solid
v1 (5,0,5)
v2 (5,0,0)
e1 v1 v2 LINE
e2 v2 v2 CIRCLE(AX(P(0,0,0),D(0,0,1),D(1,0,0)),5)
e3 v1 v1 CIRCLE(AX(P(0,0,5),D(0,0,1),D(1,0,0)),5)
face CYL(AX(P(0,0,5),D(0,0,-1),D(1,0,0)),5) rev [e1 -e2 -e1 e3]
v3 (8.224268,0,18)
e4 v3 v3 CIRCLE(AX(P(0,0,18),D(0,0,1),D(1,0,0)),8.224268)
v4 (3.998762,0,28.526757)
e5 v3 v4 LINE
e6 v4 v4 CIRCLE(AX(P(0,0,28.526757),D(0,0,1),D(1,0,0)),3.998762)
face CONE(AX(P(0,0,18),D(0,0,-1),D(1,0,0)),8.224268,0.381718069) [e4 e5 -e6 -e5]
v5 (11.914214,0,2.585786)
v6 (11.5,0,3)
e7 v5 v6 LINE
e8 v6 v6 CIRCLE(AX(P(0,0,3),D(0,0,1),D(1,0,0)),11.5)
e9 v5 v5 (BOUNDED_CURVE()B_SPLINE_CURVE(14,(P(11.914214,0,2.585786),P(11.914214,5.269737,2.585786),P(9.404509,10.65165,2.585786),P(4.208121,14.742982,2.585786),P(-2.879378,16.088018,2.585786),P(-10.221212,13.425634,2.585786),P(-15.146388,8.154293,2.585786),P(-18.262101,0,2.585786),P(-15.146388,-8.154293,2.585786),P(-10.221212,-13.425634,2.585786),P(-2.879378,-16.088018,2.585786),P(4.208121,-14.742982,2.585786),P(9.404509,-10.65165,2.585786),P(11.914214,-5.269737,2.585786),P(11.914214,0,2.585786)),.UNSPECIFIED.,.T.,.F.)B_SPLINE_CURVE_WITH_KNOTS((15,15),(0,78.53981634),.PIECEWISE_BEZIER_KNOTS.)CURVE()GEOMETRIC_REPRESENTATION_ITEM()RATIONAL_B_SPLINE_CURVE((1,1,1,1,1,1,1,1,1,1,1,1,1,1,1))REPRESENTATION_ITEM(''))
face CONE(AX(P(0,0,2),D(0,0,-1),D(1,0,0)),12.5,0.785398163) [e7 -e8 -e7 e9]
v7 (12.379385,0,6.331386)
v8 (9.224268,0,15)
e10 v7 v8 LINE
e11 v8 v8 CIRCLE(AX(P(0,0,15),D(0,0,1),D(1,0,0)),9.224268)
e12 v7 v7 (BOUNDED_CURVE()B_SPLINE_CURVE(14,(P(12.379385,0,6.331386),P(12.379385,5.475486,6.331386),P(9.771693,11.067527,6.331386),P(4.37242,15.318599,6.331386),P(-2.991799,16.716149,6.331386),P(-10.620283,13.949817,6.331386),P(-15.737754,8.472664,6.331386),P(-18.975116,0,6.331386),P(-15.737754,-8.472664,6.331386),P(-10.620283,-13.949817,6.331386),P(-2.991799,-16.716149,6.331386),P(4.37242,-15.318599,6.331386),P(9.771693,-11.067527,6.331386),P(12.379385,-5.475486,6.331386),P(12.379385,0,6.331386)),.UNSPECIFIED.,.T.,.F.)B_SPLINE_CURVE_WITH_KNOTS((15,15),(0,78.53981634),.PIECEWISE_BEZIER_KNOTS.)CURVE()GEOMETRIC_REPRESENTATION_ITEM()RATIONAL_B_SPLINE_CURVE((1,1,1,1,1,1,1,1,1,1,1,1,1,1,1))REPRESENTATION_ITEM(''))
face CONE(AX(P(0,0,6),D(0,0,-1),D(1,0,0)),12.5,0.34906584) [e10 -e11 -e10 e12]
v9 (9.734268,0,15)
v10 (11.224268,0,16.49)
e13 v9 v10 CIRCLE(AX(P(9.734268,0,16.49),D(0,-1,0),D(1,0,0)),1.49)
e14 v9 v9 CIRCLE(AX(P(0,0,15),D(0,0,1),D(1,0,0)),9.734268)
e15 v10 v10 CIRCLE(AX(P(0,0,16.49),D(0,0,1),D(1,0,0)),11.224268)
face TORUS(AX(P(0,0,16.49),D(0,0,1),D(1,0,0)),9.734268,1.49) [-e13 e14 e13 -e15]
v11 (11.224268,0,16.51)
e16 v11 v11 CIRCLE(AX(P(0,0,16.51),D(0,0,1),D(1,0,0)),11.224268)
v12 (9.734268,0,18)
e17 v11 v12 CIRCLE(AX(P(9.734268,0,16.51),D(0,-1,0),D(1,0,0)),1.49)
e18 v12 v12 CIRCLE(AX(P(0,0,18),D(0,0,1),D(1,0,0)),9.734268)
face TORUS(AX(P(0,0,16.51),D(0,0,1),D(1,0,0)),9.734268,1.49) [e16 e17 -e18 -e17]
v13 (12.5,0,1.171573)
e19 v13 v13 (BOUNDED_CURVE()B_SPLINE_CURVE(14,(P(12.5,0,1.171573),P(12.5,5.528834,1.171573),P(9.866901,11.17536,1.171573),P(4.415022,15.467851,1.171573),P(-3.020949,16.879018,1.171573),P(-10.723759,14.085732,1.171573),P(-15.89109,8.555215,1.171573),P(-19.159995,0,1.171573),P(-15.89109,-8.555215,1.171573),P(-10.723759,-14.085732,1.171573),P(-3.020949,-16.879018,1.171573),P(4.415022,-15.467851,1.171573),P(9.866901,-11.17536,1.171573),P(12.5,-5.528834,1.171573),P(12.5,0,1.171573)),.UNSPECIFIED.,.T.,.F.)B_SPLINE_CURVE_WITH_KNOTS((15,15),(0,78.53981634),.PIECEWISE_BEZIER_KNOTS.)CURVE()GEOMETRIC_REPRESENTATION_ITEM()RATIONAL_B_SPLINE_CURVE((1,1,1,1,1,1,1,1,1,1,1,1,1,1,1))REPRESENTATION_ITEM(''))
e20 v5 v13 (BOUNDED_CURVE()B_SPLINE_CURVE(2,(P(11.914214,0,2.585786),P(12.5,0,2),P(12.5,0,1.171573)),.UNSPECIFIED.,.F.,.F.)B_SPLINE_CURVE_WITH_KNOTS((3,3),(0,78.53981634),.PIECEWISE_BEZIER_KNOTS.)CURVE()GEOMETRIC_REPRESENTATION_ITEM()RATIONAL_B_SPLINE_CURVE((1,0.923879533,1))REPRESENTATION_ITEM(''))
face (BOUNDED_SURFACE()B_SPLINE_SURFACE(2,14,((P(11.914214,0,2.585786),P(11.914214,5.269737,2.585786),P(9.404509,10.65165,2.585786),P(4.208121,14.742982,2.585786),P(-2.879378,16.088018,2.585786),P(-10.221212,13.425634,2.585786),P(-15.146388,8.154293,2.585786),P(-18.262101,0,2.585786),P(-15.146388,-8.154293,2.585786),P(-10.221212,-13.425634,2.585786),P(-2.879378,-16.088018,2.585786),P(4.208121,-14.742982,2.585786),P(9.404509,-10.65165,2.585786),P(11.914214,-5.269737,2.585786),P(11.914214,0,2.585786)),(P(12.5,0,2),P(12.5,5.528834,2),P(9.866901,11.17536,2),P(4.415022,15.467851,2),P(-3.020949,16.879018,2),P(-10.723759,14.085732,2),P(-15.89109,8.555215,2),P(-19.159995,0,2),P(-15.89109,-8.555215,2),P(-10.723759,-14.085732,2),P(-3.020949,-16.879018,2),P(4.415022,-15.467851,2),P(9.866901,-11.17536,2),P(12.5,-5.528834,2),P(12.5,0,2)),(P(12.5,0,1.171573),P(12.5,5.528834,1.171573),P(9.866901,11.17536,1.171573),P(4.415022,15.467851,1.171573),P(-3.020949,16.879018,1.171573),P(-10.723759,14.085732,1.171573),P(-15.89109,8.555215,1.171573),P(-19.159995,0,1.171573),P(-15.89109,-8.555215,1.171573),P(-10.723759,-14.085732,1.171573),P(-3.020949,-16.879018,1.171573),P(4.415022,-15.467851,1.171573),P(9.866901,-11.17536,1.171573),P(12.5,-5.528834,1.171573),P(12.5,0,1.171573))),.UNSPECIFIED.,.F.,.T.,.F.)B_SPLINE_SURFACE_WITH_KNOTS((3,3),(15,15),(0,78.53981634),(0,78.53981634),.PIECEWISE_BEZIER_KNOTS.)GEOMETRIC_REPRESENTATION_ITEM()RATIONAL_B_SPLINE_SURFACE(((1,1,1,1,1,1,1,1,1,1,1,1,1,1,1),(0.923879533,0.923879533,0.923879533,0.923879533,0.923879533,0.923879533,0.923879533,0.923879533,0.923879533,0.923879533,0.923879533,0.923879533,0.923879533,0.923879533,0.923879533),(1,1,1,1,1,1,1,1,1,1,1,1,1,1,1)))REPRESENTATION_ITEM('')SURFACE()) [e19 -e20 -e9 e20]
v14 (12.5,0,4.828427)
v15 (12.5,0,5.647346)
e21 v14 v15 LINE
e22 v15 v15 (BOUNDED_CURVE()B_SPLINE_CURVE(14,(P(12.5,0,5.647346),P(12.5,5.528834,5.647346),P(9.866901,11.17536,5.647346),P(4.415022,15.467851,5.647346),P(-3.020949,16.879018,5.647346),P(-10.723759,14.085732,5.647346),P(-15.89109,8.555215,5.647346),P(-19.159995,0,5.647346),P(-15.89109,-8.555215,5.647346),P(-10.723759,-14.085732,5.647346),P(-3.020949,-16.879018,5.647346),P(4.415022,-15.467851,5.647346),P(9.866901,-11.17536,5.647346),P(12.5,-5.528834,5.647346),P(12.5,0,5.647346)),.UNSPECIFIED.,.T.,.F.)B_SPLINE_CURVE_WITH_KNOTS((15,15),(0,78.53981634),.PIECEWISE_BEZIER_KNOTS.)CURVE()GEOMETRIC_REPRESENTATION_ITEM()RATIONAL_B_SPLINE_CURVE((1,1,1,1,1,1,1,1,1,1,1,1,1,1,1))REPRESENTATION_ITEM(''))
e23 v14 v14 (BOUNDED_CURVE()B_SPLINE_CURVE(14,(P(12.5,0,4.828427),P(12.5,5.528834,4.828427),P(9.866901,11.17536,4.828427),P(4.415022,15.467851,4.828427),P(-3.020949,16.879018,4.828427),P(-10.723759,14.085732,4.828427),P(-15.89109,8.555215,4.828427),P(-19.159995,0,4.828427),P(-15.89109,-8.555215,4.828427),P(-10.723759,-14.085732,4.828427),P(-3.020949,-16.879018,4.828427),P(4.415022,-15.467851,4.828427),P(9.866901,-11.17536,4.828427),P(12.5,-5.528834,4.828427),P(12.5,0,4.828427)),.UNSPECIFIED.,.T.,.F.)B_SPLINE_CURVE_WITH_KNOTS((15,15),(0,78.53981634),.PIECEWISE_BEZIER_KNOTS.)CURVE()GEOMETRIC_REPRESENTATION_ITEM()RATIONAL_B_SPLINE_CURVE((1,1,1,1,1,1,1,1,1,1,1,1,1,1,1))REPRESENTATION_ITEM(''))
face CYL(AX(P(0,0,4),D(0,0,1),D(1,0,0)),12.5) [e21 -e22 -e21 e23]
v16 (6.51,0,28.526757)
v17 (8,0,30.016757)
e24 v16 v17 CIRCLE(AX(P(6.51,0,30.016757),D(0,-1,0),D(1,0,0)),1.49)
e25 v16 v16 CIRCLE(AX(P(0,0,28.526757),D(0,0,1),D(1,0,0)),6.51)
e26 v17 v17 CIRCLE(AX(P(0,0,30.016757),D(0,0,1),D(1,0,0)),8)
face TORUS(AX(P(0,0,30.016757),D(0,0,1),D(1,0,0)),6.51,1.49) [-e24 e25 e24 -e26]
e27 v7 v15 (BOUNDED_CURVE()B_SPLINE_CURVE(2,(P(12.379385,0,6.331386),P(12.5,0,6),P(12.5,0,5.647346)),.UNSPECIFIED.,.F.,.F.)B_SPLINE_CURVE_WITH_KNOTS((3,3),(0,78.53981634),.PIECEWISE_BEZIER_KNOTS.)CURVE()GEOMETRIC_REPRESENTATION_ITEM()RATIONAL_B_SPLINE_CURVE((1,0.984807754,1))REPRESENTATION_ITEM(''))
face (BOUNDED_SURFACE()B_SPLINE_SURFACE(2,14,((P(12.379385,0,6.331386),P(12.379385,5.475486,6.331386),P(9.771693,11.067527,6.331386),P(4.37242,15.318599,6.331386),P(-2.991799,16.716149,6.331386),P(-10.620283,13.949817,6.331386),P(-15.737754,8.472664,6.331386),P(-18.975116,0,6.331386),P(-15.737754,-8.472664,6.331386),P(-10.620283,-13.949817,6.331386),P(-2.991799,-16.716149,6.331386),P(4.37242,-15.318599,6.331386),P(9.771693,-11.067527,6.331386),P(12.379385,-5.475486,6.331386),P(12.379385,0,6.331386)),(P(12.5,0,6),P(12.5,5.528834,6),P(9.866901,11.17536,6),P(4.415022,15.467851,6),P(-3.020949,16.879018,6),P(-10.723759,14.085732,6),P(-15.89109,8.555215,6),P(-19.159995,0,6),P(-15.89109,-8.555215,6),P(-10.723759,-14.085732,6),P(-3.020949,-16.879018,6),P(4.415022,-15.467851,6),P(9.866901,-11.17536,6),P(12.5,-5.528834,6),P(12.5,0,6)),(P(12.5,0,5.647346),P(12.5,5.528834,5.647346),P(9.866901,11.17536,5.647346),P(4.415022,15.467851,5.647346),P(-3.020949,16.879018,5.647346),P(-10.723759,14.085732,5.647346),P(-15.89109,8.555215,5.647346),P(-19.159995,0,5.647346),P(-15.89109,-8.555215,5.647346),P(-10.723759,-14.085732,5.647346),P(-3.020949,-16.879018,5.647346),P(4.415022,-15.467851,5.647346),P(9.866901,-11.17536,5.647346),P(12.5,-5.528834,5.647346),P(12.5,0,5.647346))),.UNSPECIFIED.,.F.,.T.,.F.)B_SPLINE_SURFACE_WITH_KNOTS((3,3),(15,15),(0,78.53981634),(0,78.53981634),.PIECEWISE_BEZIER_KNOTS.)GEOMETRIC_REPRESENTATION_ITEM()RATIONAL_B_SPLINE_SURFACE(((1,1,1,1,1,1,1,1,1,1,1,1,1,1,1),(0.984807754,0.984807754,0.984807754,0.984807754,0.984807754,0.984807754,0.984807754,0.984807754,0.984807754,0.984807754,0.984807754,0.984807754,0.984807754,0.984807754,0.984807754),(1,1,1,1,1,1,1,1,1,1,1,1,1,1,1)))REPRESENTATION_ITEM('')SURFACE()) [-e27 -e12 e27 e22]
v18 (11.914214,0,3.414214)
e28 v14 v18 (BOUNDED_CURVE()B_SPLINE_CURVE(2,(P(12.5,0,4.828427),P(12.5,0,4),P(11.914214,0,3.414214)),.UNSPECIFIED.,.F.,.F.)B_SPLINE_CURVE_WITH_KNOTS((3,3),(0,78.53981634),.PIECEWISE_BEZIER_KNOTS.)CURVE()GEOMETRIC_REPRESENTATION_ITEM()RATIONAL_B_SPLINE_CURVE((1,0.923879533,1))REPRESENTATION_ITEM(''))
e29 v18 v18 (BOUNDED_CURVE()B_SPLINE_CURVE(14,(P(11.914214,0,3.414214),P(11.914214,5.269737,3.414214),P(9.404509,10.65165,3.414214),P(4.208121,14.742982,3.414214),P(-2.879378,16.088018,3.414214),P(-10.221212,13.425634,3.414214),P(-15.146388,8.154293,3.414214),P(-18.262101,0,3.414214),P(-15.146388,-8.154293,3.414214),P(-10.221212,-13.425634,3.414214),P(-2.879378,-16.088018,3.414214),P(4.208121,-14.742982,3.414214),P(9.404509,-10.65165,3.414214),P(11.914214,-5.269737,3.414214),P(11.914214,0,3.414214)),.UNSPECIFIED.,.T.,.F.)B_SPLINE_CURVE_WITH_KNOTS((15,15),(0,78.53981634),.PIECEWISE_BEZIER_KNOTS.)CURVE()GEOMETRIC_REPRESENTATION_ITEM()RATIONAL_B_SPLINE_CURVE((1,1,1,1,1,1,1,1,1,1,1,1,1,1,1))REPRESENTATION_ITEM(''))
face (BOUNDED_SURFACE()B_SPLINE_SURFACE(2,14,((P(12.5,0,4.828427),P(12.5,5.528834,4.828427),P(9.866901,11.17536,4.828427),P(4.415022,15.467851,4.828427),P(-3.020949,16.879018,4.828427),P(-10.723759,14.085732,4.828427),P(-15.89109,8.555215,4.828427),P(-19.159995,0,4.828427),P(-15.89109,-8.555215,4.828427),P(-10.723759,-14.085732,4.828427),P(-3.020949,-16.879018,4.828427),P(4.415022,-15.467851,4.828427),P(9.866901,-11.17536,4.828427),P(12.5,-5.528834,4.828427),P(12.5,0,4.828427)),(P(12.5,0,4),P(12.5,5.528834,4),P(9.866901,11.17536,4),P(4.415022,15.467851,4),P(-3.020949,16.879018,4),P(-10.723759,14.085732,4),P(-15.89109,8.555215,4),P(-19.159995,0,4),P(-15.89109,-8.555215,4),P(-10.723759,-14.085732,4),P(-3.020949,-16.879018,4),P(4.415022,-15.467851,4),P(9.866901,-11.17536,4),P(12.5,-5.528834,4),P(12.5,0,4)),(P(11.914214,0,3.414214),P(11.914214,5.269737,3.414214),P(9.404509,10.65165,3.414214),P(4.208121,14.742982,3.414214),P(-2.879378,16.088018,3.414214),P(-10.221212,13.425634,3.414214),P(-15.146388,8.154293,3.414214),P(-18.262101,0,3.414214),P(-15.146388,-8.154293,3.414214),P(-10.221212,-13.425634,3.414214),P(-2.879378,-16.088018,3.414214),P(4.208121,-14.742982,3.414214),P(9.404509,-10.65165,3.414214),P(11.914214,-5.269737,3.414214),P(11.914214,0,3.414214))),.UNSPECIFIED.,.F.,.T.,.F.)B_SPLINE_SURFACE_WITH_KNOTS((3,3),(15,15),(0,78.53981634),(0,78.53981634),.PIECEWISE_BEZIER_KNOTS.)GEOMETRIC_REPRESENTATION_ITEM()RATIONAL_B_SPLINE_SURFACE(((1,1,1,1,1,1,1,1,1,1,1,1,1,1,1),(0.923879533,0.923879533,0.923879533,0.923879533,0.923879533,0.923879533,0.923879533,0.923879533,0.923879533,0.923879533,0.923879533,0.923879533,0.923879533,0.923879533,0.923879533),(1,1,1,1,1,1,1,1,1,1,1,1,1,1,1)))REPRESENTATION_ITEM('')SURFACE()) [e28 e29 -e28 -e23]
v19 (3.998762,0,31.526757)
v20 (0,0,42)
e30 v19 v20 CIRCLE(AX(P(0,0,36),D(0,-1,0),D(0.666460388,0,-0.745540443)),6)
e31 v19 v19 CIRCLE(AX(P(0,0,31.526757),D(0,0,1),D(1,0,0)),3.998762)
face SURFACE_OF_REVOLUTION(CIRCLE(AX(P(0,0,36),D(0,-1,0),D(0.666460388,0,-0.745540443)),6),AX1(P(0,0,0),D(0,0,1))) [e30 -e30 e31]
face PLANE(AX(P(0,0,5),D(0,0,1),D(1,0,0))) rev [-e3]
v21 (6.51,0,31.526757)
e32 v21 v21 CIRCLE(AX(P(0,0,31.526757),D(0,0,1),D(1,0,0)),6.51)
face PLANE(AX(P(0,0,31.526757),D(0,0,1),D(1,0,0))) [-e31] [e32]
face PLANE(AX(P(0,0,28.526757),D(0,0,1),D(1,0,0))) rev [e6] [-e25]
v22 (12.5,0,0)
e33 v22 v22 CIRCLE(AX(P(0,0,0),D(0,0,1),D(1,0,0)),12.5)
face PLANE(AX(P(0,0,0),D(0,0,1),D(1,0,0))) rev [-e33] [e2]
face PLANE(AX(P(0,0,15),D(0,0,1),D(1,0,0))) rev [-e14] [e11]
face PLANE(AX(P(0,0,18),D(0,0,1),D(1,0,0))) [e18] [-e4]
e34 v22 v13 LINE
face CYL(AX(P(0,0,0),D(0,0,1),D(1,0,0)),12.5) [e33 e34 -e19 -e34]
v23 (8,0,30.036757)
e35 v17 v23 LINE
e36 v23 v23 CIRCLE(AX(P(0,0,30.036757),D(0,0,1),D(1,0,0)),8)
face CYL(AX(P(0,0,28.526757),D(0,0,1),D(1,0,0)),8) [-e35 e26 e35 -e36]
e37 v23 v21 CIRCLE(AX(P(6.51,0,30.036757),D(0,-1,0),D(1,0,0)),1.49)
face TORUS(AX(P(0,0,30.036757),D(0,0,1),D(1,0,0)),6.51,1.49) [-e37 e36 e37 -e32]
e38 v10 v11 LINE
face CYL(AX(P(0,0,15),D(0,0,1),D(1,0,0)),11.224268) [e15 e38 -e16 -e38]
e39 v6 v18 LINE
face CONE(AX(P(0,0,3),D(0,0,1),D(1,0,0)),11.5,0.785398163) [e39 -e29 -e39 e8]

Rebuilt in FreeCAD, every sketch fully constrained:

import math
import FreeCAD as App
import Part
import Sketcher
from FreeCAD import Vector
Q = App.Units.Quantity


def edges_at(feature, points):
    """Names of the edges that pass closest to the given points."""
    edges = feature.Shape.Edges
    near = lambda p: min(range(len(edges)), key=lambda i: edges[i].distToShape(Part.Vertex(*p))[0])
    return sorted({f"Edge{near(p) + 1}" for p in points})

doc = App.newDocument("Part")
params = doc.addObject("Spreadsheet::Sheet", "Params")
for row, (alias, value) in enumerate([
    ("sketch1_radius", "6 mm"),
    ("sketch1_width", "5 mm"),
    ("sketch1_width2", "2 mm"),
    ("sketch1_width3", "3 mm"),
    ("sketch1_height", "37 mm"),
    ("revolution_angle", "360 deg"),
    ("fillet_radius", "1.49 mm"),
    ("fillet2_radius", "2 mm"),
], start=1):
    params.set(f"A{row}", alias)
    params.set(f"B{row}", "=" + value)
    params.setAlias(f"B{row}", alias)

body = doc.addObject("PartDesign::Body", "Body")

# Sketch on XZ plane
sketch1 = doc.addObject("Sketcher::SketchObject", "Sketch")
body.addObject(sketch1)
sketch1.AttachmentSupport = (doc.XZ_Plane, [""])
sketch1.MapMode = "FlatFace"
sketch1.addGeometry(Part.LineSegment(Vector(0, 5, 0), Vector(5, 5, 0)), False)
sketch1.addGeometry(Part.LineSegment(Vector(5, 5, 0), Vector(5, 0, 0)), False)
sketch1.addGeometry(Part.LineSegment(Vector(5, 0, 0), Vector(12.5, 0, 0)), False)
sketch1.addGeometry(Part.LineSegment(Vector(12.5, 0, 0), Vector(12.5, 2, 0)), False)
sketch1.addGeometry(Part.LineSegment(Vector(12.5, 2, 0), Vector(11.5, 3, 0)), False)
sketch1.addGeometry(Part.LineSegment(Vector(11.5, 3, 0), Vector(12.5, 4, 0)), False)
sketch1.addGeometry(Part.LineSegment(Vector(12.5, 4, 0), Vector(12.5, 6, 0)), False)
sketch1.addGeometry(Part.LineSegment(Vector(12.5, 6, 0), Vector(9.2, 15, 0)), False)
sketch1.addGeometry(Part.LineSegment(Vector(9.2, 15, 0), Vector(11.2, 15, 0)), False)
sketch1.addGeometry(Part.LineSegment(Vector(11.2, 15, 0), Vector(11.2, 18, 0)), False)
sketch1.addGeometry(Part.LineSegment(Vector(11.2, 18, 0), Vector(8.2, 18, 0)), False)
sketch1.addGeometry(Part.LineSegment(Vector(8.2, 18, 0), Vector(4, 28.5, 0)), False)
sketch1.addGeometry(Part.LineSegment(Vector(4, 28.5, 0), Vector(8, 28.5, 0)), False)
sketch1.addGeometry(Part.LineSegment(Vector(8, 28.5, 0), Vector(8, 31.5, 0)), False)
sketch1.addGeometry(Part.LineSegment(Vector(8, 31.5, 0), Vector(4, 31.5, 0)), False)
sketch1.addGeometry(Part.ArcOfCircle(Part.Circle(Vector(0, 36, 0), Vector(0, 0, 1), 6), math.radians(-48), math.radians(90)), False)
sketch1.addGeometry(Part.LineSegment(Vector(0, 42, 0), Vector(0, 5, 0)), False)
sketch1.addConstraint(Sketcher.Constraint("Coincident", 0, 2, 1, 1))
sketch1.addConstraint(Sketcher.Constraint("Coincident", 1, 2, 2, 1))
sketch1.addConstraint(Sketcher.Constraint("Coincident", 2, 2, 3, 1))
sketch1.addConstraint(Sketcher.Constraint("Coincident", 3, 2, 4, 1))
sketch1.addConstraint(Sketcher.Constraint("Coincident", 4, 2, 5, 1))
sketch1.addConstraint(Sketcher.Constraint("Coincident", 5, 2, 6, 1))
sketch1.addConstraint(Sketcher.Constraint("Coincident", 6, 2, 7, 1))
sketch1.addConstraint(Sketcher.Constraint("Coincident", 7, 2, 8, 1))
sketch1.addConstraint(Sketcher.Constraint("Coincident", 8, 2, 9, 1))
sketch1.addConstraint(Sketcher.Constraint("Coincident", 9, 2, 10, 1))
sketch1.addConstraint(Sketcher.Constraint("Coincident", 10, 2, 11, 1))
sketch1.addConstraint(Sketcher.Constraint("Coincident", 11, 2, 12, 1))
sketch1.addConstraint(Sketcher.Constraint("Coincident", 12, 2, 13, 1))
sketch1.addConstraint(Sketcher.Constraint("Coincident", 13, 2, 14, 1))
sketch1.addConstraint(Sketcher.Constraint("Coincident", 14, 2, 15, 1))
sketch1.addConstraint(Sketcher.Constraint("Coincident", 15, 2, 16, 1))
sketch1.addConstraint(Sketcher.Constraint("Coincident", 16, 2, 0, 1))
sketch1.addConstraint(Sketcher.Constraint("Horizontal", 0))
sketch1.addConstraint(Sketcher.Constraint("Vertical", 1))
sketch1.addConstraint(Sketcher.Constraint("Horizontal", 2))
sketch1.addConstraint(Sketcher.Constraint("Vertical", 3))
sketch1.addConstraint(Sketcher.Constraint("Vertical", 6))
sketch1.addConstraint(Sketcher.Constraint("Horizontal", 8))
sketch1.addConstraint(Sketcher.Constraint("Vertical", 9))
sketch1.addConstraint(Sketcher.Constraint("Horizontal", 10))
sketch1.addConstraint(Sketcher.Constraint("Horizontal", 12))
sketch1.addConstraint(Sketcher.Constraint("Vertical", 13))
sketch1.addConstraint(Sketcher.Constraint("Horizontal", 14))
sketch1.addConstraint(Sketcher.Constraint("Vertical", 16))
sketch1.addConstraint(Sketcher.Constraint("PointOnObject", 15, 3, -2))
sketch1.addConstraint(Sketcher.Constraint("PointOnObject", 1, 2, -1))
sketch1.addConstraint(Sketcher.Constraint("PointOnObject", 15, 2, -2))
sketch1.addConstraint(Sketcher.Constraint("Perpendicular", 4, 5))
sketch1.addConstraint(Sketcher.Constraint("Vertical", 3, 2, 5, 2))
sketch1.addConstraint(Sketcher.Constraint("Vertical", 11, 2, 14, 2))
sketch1.addConstraint(Sketcher.Constraint("Equal", 0, 1))
sketch1.addConstraint(Sketcher.Constraint("Equal", 8, 3))
sketch1.addConstraint(Sketcher.Constraint("Equal", 3, 6))
sketch1.addConstraint(Sketcher.Constraint("Equal", 10, 9))
sketch1.addConstraint(Sketcher.Constraint("Equal", 9, 13))
sketch1.addConstraint(Sketcher.Constraint("Equal", 4, 5))
sketch1.addConstraint(Sketcher.Constraint("Radius", 15, 6.0))
sketch1.addConstraint(Sketcher.Constraint("DistanceX", 0, 1, 0, 2, 5.0))
sketch1.addConstraint(Sketcher.Constraint("DistanceX", 8, 1, 8, 2, 2.0))
sketch1.addConstraint(Sketcher.Constraint("DistanceX", 10, 2, 10, 1, 3.0))
sketch1.addConstraint(Sketcher.Constraint("DistanceY", 16, 2, 16, 1, 37.0))
sketch1.addConstraint(Sketcher.Constraint("Angle", 7, Q("109.999999 deg")))
sketch1.addConstraint(Sketcher.Constraint("DistanceX", 2, 1, 2, 2, 7.5))
sketch1.addConstraint(Sketcher.Constraint("DistanceY", -1, 1, 4, 2, 3.0))
sketch1.addConstraint(Sketcher.Constraint("DistanceY", -1, 1, 7, 2, 15.0))
sketch1.addConstraint(Sketcher.Constraint("DistanceX", -1, 1, 12, 2, 8.0))
sketch1.addConstraint(Sketcher.Constraint("Distance", 11, 11.34317))
sketch1.setExpression("Constraints[41]", "Params.sketch1_radius")
sketch1.setExpression("Constraints[42]", "Params.sketch1_width")
sketch1.setExpression("Constraints[43]", "Params.sketch1_width2")
sketch1.setExpression("Constraints[44]", "Params.sketch1_width3")
sketch1.setExpression("Constraints[45]", "Params.sketch1_height")
revolution = doc.addObject("PartDesign::Revolution", "Revolution")
body.addObject(revolution)
revolution.Profile = sketch1
revolution.ReferenceAxis = (sketch1, ["V_Axis"])
revolution.setExpression("Angle", "Params.revolution_angle")
doc.recompute()

fillet = doc.addObject("PartDesign::Fillet", "Fillet")
body.addObject(fillet)
fillet.Base = (revolution, edges_at(revolution, [
    (-8, 0, 31.527),
    (-8, 0, 28.527),
    (-11.224, 0, 18),
    (-11.224, 0, 15),
]))
fillet.setExpression("Radius", "Params.fillet_radius")
doc.recompute()

fillet2 = doc.addObject("PartDesign::Fillet", "Fillet001")
body.addObject(fillet2)
fillet2.Base = (fillet, edges_at(fillet, [(-12.5, 0, 6), (-12.5, 0, 4), (-12.5, 0, 2)]))
fillet2.setExpression("Radius", "Params.fillet2_radius")

doc.recompute()
